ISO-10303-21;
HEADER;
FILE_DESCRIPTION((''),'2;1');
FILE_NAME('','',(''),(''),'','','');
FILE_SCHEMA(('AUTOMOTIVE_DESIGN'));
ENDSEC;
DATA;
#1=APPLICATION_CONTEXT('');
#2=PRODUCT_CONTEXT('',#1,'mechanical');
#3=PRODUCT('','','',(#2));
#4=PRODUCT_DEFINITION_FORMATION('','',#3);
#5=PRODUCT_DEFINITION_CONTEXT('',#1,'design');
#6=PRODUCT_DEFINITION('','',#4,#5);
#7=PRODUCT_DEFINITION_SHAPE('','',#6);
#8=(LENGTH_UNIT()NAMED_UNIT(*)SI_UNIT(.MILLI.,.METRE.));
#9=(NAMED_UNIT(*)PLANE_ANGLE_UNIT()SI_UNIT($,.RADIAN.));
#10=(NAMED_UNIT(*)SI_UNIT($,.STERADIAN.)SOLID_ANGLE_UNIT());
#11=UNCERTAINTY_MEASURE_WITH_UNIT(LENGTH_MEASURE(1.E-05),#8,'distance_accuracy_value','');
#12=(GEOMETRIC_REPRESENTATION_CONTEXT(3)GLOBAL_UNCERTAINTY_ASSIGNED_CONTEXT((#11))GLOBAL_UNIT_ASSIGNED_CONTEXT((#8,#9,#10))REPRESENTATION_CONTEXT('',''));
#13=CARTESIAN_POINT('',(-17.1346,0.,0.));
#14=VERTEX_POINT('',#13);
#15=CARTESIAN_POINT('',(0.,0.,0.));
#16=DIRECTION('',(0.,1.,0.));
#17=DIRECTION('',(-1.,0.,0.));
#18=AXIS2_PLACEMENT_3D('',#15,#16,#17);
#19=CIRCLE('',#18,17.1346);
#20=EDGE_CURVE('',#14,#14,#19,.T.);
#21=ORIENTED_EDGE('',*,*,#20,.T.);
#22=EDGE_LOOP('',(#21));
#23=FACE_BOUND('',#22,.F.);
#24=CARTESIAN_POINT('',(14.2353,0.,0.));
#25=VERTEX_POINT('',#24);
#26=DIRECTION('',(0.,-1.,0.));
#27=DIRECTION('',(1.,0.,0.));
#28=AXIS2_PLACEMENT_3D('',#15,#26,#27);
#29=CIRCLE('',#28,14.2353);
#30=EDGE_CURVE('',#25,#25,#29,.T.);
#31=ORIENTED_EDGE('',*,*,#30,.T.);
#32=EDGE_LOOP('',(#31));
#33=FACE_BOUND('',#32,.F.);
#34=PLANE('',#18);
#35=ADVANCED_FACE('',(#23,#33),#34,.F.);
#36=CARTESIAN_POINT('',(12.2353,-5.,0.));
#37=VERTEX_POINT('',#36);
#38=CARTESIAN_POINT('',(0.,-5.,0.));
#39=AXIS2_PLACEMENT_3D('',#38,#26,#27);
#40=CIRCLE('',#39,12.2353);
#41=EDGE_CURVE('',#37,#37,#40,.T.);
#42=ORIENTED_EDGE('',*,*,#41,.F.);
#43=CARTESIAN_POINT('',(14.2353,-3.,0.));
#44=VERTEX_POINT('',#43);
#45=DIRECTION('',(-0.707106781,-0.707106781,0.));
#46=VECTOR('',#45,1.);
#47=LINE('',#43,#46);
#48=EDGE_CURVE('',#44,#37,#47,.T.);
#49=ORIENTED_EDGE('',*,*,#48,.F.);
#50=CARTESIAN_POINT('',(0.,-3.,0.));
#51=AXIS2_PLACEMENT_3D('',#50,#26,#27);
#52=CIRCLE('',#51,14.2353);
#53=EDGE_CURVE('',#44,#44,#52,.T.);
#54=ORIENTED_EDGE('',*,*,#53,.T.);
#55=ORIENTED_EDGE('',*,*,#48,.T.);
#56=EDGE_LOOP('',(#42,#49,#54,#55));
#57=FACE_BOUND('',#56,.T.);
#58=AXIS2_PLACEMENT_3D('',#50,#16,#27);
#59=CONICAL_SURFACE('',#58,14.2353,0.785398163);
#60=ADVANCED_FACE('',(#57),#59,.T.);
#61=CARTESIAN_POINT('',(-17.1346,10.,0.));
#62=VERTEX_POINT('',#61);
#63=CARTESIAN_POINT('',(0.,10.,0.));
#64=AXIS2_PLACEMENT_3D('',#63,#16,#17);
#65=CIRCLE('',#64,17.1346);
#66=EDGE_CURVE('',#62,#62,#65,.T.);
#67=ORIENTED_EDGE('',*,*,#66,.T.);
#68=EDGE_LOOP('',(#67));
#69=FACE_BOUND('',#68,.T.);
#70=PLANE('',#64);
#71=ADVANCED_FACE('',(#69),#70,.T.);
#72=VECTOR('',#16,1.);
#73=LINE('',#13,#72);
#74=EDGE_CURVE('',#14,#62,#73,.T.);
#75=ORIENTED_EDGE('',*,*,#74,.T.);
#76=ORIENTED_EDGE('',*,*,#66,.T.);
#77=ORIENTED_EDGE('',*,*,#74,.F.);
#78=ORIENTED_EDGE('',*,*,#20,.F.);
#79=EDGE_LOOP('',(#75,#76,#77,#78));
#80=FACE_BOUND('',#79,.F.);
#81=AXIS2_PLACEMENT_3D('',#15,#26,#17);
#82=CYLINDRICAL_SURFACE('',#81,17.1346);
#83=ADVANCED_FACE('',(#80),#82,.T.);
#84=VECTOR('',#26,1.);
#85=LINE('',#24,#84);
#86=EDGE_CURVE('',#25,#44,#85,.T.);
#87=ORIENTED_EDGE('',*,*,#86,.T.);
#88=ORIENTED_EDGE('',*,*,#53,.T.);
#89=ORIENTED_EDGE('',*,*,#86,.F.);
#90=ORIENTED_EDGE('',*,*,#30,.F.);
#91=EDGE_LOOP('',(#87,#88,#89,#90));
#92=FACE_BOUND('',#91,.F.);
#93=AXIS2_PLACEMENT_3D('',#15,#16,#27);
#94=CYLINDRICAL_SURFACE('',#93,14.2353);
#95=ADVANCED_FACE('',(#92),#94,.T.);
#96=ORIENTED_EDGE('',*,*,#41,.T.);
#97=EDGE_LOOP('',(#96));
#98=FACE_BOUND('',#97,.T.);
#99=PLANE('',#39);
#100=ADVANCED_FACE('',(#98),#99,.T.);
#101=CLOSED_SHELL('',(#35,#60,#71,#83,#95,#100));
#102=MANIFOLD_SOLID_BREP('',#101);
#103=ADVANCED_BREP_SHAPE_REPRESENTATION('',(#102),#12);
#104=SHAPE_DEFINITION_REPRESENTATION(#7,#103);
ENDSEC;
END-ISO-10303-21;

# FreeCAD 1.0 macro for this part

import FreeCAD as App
import Part
import Sketcher


def edges_at(feature, points):
    """Names of the edges that pass closest to the given points."""
    edges = feature.Shape.Edges
    near = lambda p: min(range(len(edges)), key=lambda i: edges[i].distToShape(Part.Vertex(*p))[0])
    return sorted({f"Edge{near(p) + 1}" for p in points})

doc = App.newDocument("Part")
params = doc.addObject("Spreadsheet::Sheet", "Params")
for row, (alias, value) in enumerate([
    ("pad1_length", "10 mm"),
    ("pad2_length", "5 mm"),
    ("chamfer_size", "2 mm"),
], start=1):
    params.set(f"A{row}", alias)
    params.set(f"B{row}", "=" + value)
    params.setAlias(f"B{row}", alias)

body = doc.addObject("PartDesign::Body", "Body")

# Sketch on XZ plane
sketch1 = body.newObject("Sketcher::SketchObject", "Sketch")
sketch1.AttachmentSupport = (doc.getObject("XZ_Plane"), [""])
sketch1.MapMode = "FlatFace"
sketch1.addGeometry(Part.Circle(App.Vector(0, 0, 0), App.Vector(0, 0, 1), 17), False)
sketch1.addConstraint([
    Sketcher.Constraint("Coincident", 0, 3, -1, 1),
    Sketcher.Constraint("Diameter", 0, 34.2692),
])
pad1 = body.newObject("PartDesign::Pad", "Pad")
pad1.Profile = sketch1
pad1.setExpression("Length", "Params.pad1_length")
pad1.Reversed = True

# Sketch on XZ plane
sketch2 = body.newObject("Sketcher::SketchObject", "Sketch001")
sketch2.AttachmentSupport = (doc.getObject("XZ_Plane"), [""])
sketch2.MapMode = "FlatFace"
sketch2.addGeometry(Part.Circle(App.Vector(0, 0, 0), App.Vector(0, 0, 1), 14), False)
sketch2.addConstraint([
    Sketcher.Constraint("Coincident", 0, 3, -1, 1),
    Sketcher.Constraint("Diameter", 0, 28.4706),
])
pad2 = body.newObject("PartDesign::Pad", "Pad001")
pad2.Profile = sketch2
pad2.setExpression("Length", "Params.pad2_length")
doc.recompute()

chamfer = body.newObject("PartDesign::Chamfer", "Chamfer")
chamfer.Base = (pad2, edges_at(pad2, [(-14.235, -5, 0)]))
chamfer.setExpression("Size", "Params.chamfer_size")

doc.recompute()
